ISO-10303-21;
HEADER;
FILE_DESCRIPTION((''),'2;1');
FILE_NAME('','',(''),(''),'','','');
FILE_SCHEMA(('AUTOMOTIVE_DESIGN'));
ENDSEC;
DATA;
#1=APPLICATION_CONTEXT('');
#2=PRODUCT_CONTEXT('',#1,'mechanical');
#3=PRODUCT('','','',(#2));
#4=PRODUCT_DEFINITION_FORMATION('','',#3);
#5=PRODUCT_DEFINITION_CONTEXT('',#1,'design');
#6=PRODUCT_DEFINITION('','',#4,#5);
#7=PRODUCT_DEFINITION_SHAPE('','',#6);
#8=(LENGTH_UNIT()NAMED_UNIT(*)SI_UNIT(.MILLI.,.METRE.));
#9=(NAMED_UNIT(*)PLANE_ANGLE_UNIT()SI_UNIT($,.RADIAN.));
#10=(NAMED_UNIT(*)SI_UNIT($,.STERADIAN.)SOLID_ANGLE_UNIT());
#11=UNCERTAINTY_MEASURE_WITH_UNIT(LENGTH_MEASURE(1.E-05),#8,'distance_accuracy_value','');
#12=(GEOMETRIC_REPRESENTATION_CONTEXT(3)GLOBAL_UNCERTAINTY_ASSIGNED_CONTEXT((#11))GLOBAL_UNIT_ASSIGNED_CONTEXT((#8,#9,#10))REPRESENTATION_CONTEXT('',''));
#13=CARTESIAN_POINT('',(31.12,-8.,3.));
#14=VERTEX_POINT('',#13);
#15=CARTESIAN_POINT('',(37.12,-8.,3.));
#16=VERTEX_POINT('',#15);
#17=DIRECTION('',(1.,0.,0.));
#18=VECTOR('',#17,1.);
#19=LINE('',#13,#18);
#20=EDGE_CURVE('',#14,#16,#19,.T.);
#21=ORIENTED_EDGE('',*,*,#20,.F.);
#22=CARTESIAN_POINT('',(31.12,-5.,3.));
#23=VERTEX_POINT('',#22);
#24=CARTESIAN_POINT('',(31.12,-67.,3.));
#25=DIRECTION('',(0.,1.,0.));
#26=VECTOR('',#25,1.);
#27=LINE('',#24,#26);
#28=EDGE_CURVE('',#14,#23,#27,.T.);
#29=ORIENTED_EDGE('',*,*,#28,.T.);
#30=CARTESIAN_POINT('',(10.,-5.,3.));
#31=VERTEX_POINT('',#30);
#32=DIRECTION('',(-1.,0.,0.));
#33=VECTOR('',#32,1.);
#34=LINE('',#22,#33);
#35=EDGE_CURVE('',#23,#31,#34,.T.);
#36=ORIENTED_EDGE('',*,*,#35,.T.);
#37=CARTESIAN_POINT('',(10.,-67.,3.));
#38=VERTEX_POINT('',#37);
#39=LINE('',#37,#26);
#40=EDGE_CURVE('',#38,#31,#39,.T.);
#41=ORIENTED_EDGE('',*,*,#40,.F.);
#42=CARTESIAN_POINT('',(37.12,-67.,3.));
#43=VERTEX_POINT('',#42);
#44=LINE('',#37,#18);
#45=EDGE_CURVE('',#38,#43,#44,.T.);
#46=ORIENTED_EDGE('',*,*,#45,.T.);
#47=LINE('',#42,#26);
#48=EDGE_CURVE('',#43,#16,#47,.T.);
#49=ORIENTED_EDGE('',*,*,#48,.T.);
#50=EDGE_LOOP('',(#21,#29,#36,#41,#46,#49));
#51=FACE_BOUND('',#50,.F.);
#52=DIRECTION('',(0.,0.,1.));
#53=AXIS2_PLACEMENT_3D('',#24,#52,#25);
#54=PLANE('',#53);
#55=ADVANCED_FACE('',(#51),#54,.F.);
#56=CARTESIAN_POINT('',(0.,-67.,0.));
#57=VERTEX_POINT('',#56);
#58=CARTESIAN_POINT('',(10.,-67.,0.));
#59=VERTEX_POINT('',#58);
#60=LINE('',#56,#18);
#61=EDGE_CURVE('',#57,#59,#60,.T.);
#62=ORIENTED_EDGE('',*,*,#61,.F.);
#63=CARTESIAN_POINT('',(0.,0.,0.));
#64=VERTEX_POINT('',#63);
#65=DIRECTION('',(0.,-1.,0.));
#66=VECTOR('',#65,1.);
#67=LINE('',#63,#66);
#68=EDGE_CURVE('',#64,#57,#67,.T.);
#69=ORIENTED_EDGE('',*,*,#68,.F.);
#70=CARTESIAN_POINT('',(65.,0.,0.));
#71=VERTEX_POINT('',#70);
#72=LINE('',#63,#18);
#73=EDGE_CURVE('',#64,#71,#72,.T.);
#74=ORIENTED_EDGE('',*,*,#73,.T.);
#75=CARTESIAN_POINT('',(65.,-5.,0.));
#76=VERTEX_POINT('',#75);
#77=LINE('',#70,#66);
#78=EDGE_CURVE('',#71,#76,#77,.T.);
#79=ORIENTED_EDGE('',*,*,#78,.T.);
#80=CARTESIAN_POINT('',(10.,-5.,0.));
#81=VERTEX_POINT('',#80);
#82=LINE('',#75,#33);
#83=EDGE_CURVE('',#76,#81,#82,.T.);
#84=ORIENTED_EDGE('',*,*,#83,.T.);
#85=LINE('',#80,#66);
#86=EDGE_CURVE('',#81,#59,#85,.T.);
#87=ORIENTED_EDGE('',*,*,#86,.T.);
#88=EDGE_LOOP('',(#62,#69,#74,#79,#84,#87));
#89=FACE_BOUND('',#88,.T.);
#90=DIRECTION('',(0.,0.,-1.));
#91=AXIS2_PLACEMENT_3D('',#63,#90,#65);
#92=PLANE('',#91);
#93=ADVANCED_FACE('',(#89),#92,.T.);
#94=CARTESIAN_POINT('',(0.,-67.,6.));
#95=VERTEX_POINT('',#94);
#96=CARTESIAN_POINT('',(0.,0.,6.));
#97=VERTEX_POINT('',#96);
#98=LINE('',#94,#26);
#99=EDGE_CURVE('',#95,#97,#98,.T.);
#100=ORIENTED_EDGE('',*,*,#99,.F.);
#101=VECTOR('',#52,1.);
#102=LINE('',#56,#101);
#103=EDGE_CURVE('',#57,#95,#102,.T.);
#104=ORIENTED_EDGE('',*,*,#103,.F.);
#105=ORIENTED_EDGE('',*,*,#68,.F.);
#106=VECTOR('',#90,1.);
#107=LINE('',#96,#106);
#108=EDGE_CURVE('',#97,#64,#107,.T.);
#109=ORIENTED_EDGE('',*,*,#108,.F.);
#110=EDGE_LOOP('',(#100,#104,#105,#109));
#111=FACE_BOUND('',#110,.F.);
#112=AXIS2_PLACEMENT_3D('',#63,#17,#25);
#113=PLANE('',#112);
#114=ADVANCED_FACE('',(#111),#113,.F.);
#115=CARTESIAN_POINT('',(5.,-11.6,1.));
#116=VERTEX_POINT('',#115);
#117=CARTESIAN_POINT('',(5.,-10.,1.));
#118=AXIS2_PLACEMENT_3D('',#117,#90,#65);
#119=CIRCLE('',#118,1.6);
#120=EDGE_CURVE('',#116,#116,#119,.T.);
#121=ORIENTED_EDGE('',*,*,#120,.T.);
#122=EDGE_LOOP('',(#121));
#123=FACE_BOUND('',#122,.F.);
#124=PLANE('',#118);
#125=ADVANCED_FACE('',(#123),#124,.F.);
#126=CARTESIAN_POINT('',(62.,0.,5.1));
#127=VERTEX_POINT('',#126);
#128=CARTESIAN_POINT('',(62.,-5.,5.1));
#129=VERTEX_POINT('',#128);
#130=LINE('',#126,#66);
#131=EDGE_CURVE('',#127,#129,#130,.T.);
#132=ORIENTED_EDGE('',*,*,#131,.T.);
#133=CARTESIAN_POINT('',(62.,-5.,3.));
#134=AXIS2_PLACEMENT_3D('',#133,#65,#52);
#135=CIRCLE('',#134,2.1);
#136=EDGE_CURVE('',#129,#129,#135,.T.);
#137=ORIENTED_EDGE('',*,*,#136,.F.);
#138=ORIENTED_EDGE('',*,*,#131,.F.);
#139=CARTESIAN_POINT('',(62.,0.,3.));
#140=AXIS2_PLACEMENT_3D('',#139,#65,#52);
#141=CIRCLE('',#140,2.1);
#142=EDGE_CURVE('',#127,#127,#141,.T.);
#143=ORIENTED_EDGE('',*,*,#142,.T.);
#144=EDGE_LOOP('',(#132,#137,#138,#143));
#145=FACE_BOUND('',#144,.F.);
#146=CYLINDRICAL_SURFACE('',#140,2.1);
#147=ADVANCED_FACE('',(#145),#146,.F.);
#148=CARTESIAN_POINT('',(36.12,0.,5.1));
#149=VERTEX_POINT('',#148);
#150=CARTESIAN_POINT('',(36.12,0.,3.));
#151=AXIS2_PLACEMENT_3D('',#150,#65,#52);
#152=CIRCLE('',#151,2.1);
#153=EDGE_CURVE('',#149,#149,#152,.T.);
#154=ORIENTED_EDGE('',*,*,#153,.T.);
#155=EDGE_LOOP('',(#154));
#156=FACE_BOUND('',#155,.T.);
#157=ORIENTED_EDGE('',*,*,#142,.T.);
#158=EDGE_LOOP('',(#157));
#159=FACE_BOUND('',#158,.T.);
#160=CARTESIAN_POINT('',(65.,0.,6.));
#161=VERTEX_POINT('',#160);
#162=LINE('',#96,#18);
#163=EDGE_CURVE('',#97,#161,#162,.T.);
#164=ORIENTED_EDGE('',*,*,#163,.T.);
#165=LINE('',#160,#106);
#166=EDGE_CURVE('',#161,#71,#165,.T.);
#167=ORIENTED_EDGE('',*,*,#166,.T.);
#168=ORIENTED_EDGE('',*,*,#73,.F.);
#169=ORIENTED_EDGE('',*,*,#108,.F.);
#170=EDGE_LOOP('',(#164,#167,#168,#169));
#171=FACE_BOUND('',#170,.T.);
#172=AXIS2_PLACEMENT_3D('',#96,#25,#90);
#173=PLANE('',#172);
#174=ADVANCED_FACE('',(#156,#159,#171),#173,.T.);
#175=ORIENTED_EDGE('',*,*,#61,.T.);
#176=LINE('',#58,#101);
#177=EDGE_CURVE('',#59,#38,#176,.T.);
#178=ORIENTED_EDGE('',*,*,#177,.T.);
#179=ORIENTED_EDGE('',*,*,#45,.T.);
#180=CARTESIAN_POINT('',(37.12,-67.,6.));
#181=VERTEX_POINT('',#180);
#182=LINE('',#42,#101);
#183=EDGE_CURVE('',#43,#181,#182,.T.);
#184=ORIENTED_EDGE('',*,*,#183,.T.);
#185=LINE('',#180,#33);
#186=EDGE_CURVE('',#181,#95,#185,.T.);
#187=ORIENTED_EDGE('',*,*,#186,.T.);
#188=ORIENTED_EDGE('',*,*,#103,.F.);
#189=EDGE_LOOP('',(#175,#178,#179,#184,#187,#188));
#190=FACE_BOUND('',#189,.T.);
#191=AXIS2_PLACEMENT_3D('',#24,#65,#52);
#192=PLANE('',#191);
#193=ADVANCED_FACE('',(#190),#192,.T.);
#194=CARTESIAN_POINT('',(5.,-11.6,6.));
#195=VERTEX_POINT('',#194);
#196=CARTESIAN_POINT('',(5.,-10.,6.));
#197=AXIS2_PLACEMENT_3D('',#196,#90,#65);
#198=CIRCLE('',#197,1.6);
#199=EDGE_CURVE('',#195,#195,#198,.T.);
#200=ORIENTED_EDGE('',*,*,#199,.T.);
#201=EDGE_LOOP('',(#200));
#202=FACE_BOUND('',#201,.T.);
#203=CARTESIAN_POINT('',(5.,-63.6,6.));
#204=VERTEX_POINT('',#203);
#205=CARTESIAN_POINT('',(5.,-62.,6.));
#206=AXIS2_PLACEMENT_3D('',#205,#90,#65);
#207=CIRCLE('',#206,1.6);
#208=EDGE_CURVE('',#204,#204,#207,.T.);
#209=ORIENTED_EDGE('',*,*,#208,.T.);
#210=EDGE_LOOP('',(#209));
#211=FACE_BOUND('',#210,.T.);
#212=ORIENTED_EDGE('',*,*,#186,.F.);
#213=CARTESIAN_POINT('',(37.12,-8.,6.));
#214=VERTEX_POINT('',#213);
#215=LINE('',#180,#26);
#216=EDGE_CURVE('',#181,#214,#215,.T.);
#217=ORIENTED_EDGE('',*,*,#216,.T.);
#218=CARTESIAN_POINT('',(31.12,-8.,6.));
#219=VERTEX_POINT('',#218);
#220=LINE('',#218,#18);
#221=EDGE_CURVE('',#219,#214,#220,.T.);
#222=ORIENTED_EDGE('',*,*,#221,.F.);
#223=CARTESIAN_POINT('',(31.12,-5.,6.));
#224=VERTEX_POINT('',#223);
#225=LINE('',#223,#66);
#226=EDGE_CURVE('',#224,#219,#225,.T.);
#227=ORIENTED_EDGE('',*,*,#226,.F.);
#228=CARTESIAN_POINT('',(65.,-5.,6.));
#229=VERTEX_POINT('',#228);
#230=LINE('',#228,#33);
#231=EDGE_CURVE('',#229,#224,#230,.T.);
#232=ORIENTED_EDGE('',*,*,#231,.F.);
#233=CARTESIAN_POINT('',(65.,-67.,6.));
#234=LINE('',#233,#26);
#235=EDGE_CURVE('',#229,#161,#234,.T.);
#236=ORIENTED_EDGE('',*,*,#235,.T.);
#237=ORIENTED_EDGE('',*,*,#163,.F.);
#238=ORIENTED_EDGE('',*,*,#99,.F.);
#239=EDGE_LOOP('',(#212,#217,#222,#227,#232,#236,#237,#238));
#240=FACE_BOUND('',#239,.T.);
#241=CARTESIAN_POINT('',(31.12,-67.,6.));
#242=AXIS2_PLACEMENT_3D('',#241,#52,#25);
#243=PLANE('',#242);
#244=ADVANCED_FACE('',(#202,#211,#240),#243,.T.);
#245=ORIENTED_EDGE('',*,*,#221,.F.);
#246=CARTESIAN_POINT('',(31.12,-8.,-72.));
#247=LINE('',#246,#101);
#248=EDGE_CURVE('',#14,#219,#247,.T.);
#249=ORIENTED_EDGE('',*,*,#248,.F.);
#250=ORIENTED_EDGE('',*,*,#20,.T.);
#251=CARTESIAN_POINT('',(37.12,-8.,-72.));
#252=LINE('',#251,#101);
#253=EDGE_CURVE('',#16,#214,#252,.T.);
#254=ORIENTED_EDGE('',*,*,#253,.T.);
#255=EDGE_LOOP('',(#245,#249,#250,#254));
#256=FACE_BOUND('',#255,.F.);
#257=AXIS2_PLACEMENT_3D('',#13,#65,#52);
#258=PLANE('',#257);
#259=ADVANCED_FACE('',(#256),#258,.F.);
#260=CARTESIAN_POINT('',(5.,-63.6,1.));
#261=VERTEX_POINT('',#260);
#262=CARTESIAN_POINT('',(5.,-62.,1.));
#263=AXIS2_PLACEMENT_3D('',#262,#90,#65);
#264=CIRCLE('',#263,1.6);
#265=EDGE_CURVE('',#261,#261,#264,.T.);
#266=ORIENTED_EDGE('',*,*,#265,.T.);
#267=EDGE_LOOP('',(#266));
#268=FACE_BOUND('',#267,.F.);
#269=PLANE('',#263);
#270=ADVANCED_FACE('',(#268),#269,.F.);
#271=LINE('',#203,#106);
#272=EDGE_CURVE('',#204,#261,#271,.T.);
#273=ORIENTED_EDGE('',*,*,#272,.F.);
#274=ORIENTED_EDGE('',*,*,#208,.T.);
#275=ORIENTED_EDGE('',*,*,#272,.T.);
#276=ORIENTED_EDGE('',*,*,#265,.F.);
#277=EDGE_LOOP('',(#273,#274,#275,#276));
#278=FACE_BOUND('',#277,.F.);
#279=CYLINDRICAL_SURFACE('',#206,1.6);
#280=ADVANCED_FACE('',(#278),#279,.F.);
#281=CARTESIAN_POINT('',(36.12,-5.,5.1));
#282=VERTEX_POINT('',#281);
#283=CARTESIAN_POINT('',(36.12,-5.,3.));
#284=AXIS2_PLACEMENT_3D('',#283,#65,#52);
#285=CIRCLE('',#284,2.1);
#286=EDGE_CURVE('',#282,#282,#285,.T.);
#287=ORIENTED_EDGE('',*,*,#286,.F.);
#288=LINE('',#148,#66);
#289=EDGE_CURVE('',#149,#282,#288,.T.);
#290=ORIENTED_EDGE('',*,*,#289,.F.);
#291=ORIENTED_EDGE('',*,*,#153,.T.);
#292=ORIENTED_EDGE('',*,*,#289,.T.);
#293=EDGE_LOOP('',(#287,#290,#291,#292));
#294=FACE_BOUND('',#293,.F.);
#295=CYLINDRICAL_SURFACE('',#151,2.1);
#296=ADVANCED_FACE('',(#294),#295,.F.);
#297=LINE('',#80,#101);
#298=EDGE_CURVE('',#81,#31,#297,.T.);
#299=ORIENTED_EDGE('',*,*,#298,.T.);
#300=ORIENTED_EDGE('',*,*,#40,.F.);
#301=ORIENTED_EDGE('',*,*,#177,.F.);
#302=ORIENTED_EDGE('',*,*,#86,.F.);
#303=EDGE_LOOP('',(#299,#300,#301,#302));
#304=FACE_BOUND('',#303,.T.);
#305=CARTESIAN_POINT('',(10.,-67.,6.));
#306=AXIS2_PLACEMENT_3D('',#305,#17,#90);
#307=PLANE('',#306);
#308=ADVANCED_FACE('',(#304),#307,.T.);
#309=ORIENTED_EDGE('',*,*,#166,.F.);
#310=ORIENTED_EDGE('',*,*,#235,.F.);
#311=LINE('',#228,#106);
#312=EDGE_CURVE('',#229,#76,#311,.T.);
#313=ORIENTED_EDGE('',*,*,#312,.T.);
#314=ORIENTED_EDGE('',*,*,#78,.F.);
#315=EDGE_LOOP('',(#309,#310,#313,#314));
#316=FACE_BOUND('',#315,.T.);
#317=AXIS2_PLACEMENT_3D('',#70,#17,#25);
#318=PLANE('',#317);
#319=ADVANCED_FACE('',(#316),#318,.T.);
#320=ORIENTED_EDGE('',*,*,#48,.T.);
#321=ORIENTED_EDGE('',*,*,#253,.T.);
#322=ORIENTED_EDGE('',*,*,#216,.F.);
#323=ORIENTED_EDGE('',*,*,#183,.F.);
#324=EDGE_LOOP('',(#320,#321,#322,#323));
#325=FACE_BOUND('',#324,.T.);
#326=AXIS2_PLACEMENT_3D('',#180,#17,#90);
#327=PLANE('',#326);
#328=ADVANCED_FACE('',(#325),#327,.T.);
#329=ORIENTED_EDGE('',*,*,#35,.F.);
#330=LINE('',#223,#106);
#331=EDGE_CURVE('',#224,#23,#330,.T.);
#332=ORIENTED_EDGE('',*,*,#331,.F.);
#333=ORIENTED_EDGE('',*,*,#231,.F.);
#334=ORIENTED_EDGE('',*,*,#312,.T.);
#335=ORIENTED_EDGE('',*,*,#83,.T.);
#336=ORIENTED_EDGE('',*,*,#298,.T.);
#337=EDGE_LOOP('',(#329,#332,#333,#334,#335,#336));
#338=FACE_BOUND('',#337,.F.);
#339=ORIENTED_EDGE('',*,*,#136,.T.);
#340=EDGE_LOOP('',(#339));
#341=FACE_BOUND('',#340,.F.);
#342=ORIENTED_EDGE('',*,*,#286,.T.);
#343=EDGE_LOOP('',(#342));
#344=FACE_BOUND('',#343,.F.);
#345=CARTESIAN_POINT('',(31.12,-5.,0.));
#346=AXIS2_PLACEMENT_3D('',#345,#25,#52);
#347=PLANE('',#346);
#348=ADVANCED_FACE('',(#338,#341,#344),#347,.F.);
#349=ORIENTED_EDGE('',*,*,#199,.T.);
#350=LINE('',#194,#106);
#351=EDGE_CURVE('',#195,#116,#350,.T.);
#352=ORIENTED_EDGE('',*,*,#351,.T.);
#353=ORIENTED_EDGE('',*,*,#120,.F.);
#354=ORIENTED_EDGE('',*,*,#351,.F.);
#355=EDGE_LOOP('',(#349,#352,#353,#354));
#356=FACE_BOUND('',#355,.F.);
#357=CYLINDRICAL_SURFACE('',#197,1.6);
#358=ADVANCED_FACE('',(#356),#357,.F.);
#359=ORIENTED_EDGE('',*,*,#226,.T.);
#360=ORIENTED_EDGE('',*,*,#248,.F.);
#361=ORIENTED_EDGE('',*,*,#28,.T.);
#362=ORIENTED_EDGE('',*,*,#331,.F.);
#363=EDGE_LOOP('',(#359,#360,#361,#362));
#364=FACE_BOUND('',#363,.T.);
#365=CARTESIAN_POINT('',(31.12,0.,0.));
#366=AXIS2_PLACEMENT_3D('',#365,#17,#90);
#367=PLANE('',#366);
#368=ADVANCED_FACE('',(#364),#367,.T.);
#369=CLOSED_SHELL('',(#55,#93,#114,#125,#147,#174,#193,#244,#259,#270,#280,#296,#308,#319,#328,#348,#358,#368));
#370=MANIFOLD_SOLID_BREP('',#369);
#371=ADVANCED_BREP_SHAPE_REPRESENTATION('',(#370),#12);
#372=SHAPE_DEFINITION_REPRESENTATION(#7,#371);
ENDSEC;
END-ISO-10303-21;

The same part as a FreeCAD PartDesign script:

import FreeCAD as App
import Part
import Sketcher
from FreeCAD import Vector


def add_polygon(sketch, points):
    """Adds a closed chain of lines whose ends are joined by coincident constraints."""
    first, n = sketch.GeometryCount, len(points)
    for a, b in zip(points, points[1:] + points[:1]):
        sketch.addGeometry(Part.LineSegment(App.Vector(*a, 0), App.Vector(*b, 0)), False)
    for i in range(n):
        sketch.addConstraint(Sketcher.Constraint("Coincident", first + i, 2, first + (i + 1) % n, 1))

doc = App.newDocument("Part")
body = doc.addObject("PartDesign::Body", "Body")

sketch1 = body.newObject("Sketcher::SketchObject", "Sketch")
sketch1.AttachmentSupport = (doc.getObject("YZ_Plane"), [""])
sketch1.MapMode = "FlatFace"
add_polygon(sketch1, [(-67, 0), (0, 0), (0, 6), (-67, 6)])
sketch1.addConstraint(Sketcher.Constraint("Horizontal", 0))
sketch1.addConstraint(Sketcher.Constraint("Vertical", 1))
sketch1.addConstraint(Sketcher.Constraint("Horizontal", 2))
sketch1.addConstraint(Sketcher.Constraint("Vertical", 3))
sketch1.addConstraint(Sketcher.Constraint("Coincident", 0, 2, -1, 1))
sketch1.addConstraint(Sketcher.Constraint("DistanceX", 0, 1, 0, 2, 67.0))
sketch1.addConstraint(Sketcher.Constraint("DistanceY", 1, 1, 1, 2, 6.0))
pad1 = body.newObject("PartDesign::Pad", "Pad")
pad1.Profile = sketch1
pad1.Length = 65

sketch2 = body.newObject("Sketcher::SketchObject", "Sketch001")
sketch2.AttachmentSupport = (doc.getObject("YZ_Plane"), [""])
sketch2.MapMode = "FlatFace"
sketch2.AttachmentOffset = App.Placement(Vector(0, 0, 65), App.Rotation())
add_polygon(sketch2, [(-5, 0), (-5, 6), (-67, 6), (-67, 0)])
sketch2.addConstraint(Sketcher.Constraint("Vertical", 0))
sketch2.addConstraint(Sketcher.Constraint("Horizontal", 1))
sketch2.addConstraint(Sketcher.Constraint("Vertical", 2))
sketch2.addConstraint(Sketcher.Constraint("Horizontal", 3))
sketch2.addConstraint(Sketcher.Constraint("PointOnObject", 2, 2, -1))
sketch2.addConstraint(Sketcher.Constraint("DistanceX", 1, 2, 1, 1, 62.0))
sketch2.addConstraint(Sketcher.Constraint("DistanceY", 0, 1, 0, 2, 6.0))
sketch2.addConstraint(Sketcher.Constraint("DistanceX", 0, 2, -1, 1, 5.0))
pocket1 = body.newObject("PartDesign::Pocket", "Pocket")
pocket1.Profile = sketch2
pocket1.Length = 33.88

sketch3 = body.newObject("Sketcher::SketchObject", "Sketch002")
sketch3.AttachmentSupport = (doc.getObject("XZ_Plane"), [""])
sketch3.MapMode = "FlatFace"
sketch3.addGeometry(Part.Circle(Vector(36.1, 3, 0), Vector(0, 0, 1), 2.1), False)
sketch3.addGeometry(Part.Circle(Vector(62, 3, 0), Vector(0, 0, 1), 2.1), False)
sketch3.addConstraint(Sketcher.Constraint("Equal", 0, 1))
sketch3.addConstraint(Sketcher.Constraint("Horizontal", 0, 3, 1, 3))
sketch3.addConstraint(Sketcher.Constraint("Diameter", 0, 4.2))
sketch3.addConstraint(Sketcher.Constraint("DistanceY", -1, 1, 0, 3, 3.0))
sketch3.addConstraint(Sketcher.Constraint("DistanceX", -1, 1, 1, 3, 62.0))
sketch3.addConstraint(Sketcher.Constraint("DistanceX", -1, 1, 0, 3, 36.12))
doc.recompute()
hole = body.newObject("PartDesign::Hole", "Hole")
hole.Profile = sketch3
hole.ThreadType = "None"
hole.Diameter = 4.2
hole.DepthType = "Dimension"
hole.Depth = 5
hole.DrillPoint = "Flat"
hole.Reversed = True

sketch4 = body.newObject("Sketcher::SketchObject", "Sketch003")
sketch4.AttachmentSupport = (doc.getObject("XY_Plane"), [""])
sketch4.MapMode = "FlatFace"
sketch4.AttachmentOffset = App.Placement(Vector(0, 0, 6), App.Rotation())
sketch4.addGeometry(Part.Circle(Vector(5, -10, 0), Vector(0, 0, 1), 1.6), False)
sketch4.addGeometry(Part.Circle(Vector(5, -62, 0), Vector(0, 0, 1), 1.6), False)
sketch4.addConstraint(Sketcher.Constraint("Equal", 0, 1))
sketch4.addConstraint(Sketcher.Constraint("Vertical", 0, 3, 1, 3))
sketch4.addConstraint(Sketcher.Constraint("Diameter", 0, 3.2))
sketch4.addConstraint(Sketcher.Constraint("DistanceX", -1, 1, 0, 3, 5.0))
sketch4.addConstraint(Sketcher.Constraint("DistanceY", 0, 3, -1, 1, 10.0))
sketch4.addConstraint(Sketcher.Constraint("DistanceY", 1, 3, -1, 1, 62.0))
doc.recompute()
hole2 = body.newObject("PartDesign::Hole", "Hole001")
hole2.Profile = sketch4
hole2.ThreadType = "None"
hole2.Diameter = 3.2
hole2.DepthType = "Dimension"
hole2.Depth = 5
hole2.DrillPoint = "Flat"

sketch5 = body.newObject("Sketcher::SketchObject", "Sketch004")
sketch5.AttachmentSupport = (doc.getObject("YZ_Plane"), [""])
sketch5.MapMode = "FlatFace"
sketch5.AttachmentOffset = App.Placement(Vector(0, 0, 31.12), App.Rotation())
add_polygon(sketch5, [(-67, 0), (-5, 0), (-5, 3), (-67, 3)])
sketch5.addConstraint(Sketcher.Constraint("Horizontal", 0))
sketch5.addConstraint(Sketcher.Constraint("Vertical", 1))
sketch5.addConstraint(Sketcher.Constraint("Horizontal", 2))
sketch5.addConstraint(Sketcher.Constraint("Vertical", 3))
sketch5.addConstraint(Sketcher.Constraint("PointOnObject", 0, 2, -1))
sketch5.addConstraint(Sketcher.Constraint("DistanceX", 0, 1, 0, 2, 62.0))
sketch5.addConstraint(Sketcher.Constraint("DistanceY", 1, 1, 1, 2, 3.0))
sketch5.addConstraint(Sketcher.Constraint("DistanceX", 0, 2, -1, 1, 5.0))
pocket2 = body.newObject("PartDesign::Pocket", "Pocket001")
pocket2.Profile = sketch5
pocket2.Length = 21.12

sketch6 = body.newObject("Sketcher::SketchObject", "Sketch005")
sketch6.AttachmentSupport = (doc.getObject("YZ_Plane"), [""])
sketch6.MapMode = "FlatFace"
sketch6.AttachmentOffset = App.Placement(Vector(0, 0, 31.12), App.Rotation())
add_polygon(sketch6, [(-67, 6), (-67, 3), (-8, 3), (-8, 6)])
sketch6.addConstraint(Sketcher.Constraint("Vertical", 0))
sketch6.addConstraint(Sketcher.Constraint("Horizontal", 1))
sketch6.addConstraint(Sketcher.Constraint("Vertical", 2))
sketch6.addConstraint(Sketcher.Constraint("Horizontal", 3))
sketch6.addConstraint(Sketcher.Constraint("DistanceX", 1, 1, 1, 2, 59.0))
sketch6.addConstraint(Sketcher.Constraint("DistanceY", 0, 2, 0, 1, 3.0))
sketch6.addConstraint(Sketcher.Constraint("DistanceX", 0, 2, -1, 1, 67.0))
sketch6.addConstraint(Sketcher.Constraint("DistanceY", -1, 1, 0, 2, 3.0))
pad2 = body.newObject("PartDesign::Pad", "Pad001")
pad2.Profile = sketch6
pad2.Length = 6

doc.recompute()
